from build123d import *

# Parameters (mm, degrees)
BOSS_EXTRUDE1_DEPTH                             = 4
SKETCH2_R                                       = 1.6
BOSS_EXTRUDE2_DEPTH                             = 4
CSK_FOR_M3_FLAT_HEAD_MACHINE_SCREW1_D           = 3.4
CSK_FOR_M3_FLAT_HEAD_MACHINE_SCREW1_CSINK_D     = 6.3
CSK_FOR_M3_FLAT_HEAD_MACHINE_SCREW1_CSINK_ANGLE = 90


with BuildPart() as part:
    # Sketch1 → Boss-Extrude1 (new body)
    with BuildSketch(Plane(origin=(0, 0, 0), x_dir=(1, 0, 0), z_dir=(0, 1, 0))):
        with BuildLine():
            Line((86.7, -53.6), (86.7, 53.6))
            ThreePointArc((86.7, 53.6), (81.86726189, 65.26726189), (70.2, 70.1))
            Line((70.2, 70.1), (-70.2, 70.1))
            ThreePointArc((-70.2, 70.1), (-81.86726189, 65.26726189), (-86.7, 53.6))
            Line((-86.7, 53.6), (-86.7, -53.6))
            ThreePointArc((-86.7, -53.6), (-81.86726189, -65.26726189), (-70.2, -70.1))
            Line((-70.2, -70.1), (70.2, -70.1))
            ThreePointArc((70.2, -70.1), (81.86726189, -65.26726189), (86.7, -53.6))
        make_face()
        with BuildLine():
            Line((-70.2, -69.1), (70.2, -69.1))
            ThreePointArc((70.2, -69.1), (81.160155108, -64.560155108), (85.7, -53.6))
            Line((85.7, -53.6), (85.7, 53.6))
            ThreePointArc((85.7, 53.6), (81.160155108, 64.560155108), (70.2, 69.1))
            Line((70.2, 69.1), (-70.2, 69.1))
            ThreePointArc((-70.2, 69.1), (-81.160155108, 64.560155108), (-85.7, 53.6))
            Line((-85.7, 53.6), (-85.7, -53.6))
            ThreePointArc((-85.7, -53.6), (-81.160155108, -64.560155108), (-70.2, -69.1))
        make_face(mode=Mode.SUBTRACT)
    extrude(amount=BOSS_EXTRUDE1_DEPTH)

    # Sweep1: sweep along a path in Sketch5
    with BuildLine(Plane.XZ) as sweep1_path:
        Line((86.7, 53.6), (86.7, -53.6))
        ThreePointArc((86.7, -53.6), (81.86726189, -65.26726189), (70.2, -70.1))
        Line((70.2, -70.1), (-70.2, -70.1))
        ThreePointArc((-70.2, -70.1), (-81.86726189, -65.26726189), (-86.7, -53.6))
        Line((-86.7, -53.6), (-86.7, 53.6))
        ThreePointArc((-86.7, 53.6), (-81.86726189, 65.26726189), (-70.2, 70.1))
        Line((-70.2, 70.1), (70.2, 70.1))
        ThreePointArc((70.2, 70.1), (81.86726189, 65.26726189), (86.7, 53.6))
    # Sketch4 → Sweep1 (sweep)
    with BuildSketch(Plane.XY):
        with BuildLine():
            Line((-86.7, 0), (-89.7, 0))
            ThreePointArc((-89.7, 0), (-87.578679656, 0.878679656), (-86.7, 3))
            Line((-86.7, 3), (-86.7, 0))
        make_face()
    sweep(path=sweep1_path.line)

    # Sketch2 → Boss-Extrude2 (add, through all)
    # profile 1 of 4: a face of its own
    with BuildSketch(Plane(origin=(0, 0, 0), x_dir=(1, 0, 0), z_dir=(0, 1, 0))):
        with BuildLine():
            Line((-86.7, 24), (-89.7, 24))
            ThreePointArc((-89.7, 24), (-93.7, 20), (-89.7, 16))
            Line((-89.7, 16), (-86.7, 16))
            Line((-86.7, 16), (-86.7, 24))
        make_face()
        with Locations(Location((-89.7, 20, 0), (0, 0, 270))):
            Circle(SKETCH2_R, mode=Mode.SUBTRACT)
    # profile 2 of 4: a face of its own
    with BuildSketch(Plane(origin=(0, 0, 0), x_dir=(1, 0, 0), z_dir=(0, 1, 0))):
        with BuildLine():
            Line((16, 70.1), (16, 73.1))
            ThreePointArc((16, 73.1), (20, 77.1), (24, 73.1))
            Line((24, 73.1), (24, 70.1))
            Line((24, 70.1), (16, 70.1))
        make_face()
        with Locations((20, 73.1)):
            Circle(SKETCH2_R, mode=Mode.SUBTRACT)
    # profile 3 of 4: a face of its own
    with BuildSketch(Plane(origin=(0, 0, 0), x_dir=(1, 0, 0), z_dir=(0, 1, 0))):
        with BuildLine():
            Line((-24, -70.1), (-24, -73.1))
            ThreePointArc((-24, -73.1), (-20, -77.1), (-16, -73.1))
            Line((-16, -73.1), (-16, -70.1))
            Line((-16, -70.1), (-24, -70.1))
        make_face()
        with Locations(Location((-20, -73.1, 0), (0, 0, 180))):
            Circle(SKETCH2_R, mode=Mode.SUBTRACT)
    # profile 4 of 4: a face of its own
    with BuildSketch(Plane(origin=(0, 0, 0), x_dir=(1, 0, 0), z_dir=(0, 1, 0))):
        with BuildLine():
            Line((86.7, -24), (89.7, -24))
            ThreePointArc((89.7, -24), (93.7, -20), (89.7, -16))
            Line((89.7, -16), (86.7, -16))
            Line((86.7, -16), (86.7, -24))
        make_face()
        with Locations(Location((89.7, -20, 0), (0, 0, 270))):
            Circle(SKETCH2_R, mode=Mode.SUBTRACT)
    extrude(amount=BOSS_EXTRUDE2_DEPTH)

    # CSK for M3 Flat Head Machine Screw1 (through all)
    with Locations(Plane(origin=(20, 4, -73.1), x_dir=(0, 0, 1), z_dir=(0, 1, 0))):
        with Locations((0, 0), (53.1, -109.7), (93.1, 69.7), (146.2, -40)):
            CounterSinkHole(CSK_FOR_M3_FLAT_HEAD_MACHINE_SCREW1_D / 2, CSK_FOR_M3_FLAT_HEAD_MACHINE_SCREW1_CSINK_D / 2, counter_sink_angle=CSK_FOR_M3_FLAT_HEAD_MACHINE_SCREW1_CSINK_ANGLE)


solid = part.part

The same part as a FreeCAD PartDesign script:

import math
import FreeCAD as App
import Part
import Sketcher
from FreeCAD import Vector

doc = App.newDocument("Part")
body = doc.addObject("PartDesign::Body", "Body")

# Sketch on XZ plane
sketch1 = body.newObject("Sketcher::SketchObject", "Sketch")
sketch1.AttachmentSupport = (doc.getObject("XZ_Plane"), [""])
sketch1.MapMode = "FlatFace"
sketch1.addGeometry([
    Part.LineSegment(Vector(86.7, 53.6, 0), Vector(86.7, -53.6, 0)),  # 0
    Part.ArcOfCircle(Part.Circle(Vector(70.2, -53.6, 0), Vector(0, 0, 1), 16.5), math.radians(-90), math.radians(0)),  # 1
    Part.LineSegment(Vector(70.2, -70.1, 0), Vector(-70.2, -70.1, 0)),  # 2
    Part.ArcOfCircle(Part.Circle(Vector(-70.2, -53.6, 0), Vector(0, 0, 1), 16.5), math.radians(180), math.radians(270)),  # 3
    Part.LineSegment(Vector(-86.7, -53.6, 0), Vector(-86.7, 53.6, 0)),  # 4
    Part.ArcOfCircle(Part.Circle(Vector(-70.2, 53.6, 0), Vector(0, 0, 1), 16.5), math.radians(90), math.radians(180)),  # 5
    Part.LineSegment(Vector(-70.2, 70.1, 0), Vector(70.2, 70.1, 0)),  # 6
    Part.ArcOfCircle(Part.Circle(Vector(70.2, 53.6, 0), Vector(0, 0, 1), 16.5), math.radians(0), math.radians(90)),  # 7
    Part.LineSegment(Vector(70.2, 69.1, 0), Vector(-70.2, 69.1, 0)),  # 8
    Part.ArcOfCircle(Part.Circle(Vector(-70.2, 53.6, 0), Vector(0, 0, 1), 15.5), math.radians(90), math.radians(180)),  # 9
    Part.LineSegment(Vector(-85.7, 53.6, 0), Vector(-85.7, -53.6, 0)),  # 10
    Part.ArcOfCircle(Part.Circle(Vector(-70.2, -53.6, 0), Vector(0, 0, 1), 15.5), math.radians(-180), math.radians(-90)),  # 11
    Part.LineSegment(Vector(-70.2, -69.1, 0), Vector(70.2, -69.1, 0)),  # 12
    Part.ArcOfCircle(Part.Circle(Vector(70.2, -53.6, 0), Vector(0, 0, 1), 15.5), math.radians(-90), math.radians(0)),  # 13
    Part.LineSegment(Vector(85.7, -53.6, 0), Vector(85.7, 53.6, 0)),  # 14
    Part.ArcOfCircle(Part.Circle(Vector(70.2, 53.6, 0), Vector(0, 0, 1), 15.5), math.radians(0), math.radians(90)),  # 15
], False)
sketch1.addConstraint([
    Sketcher.Constraint("Tangent", 0, 2, 1, 2),
    Sketcher.Constraint("Tangent", 1, 1, 2, 1),
    Sketcher.Constraint("Tangent", 2, 2, 3, 2),
    Sketcher.Constraint("Tangent", 3, 1, 4, 1),
    Sketcher.Constraint("Tangent", 4, 2, 5, 2),
    Sketcher.Constraint("Tangent", 5, 1, 6, 1),
    Sketcher.Constraint("Tangent", 6, 2, 7, 2),
    Sketcher.Constraint("Tangent", 7, 1, 0, 1),
    Sketcher.Constraint("Tangent", 8, 2, 9, 1),
    Sketcher.Constraint("Tangent", 9, 2, 10, 1),
    Sketcher.Constraint("Tangent", 10, 2, 11, 1),
    Sketcher.Constraint("Tangent", 11, 2, 12, 1),
    Sketcher.Constraint("Tangent", 12, 2, 13, 1),
    Sketcher.Constraint("Tangent", 13, 2, 14, 1),
    Sketcher.Constraint("Tangent", 14, 2, 15, 1),
    Sketcher.Constraint("Tangent", 15, 2, 8, 1),
    Sketcher.Constraint("Vertical", 0),
    Sketcher.Constraint("Horizontal", 2),
    Sketcher.Constraint("Vertical", 4),
    Sketcher.Constraint("Horizontal", 6),
    Sketcher.Constraint("Horizontal", 8),
    Sketcher.Constraint("Vertical", 10),
    Sketcher.Constraint("Horizontal", 12),
    Sketcher.Constraint("Vertical", 14),
    Sketcher.Constraint("Coincident", 9, 3, 5, 3),
    Sketcher.Constraint("Coincident", 11, 3, 3, 3),
    Sketcher.Constraint("Coincident", 13, 3, 1, 3),
    Sketcher.Constraint("Equal", 1, 3),
    Sketcher.Constraint("Equal", 3, 5),
    Sketcher.Constraint("Equal", 5, 7),
    Sketcher.Constraint("Equal", 13, 15),
    Sketcher.Constraint("Symmetric", 1, 3, 5, 3, -1, 1),
    Sketcher.Constraint("Radius", 1, 16.5),
    Sketcher.Constraint("Radius", 9, 15.5),
    Sketcher.Constraint("DistanceX", 2, 2, 2, 1, 140.4),
    Sketcher.Constraint("DistanceY", 0, 2, 0, 1, 107.2),
])
pad1 = body.newObject("PartDesign::Pad", "Pad")
pad1.Profile = sketch1
pad1.Length = 4
pad1.Reversed = True

# Sketch on XY plane
sketch2 = body.newObject("Sketcher::SketchObject", "Sketch001")
sketch2.AttachmentSupport = (doc.getObject("XY_Plane"), [""])
sketch2.MapMode = "FlatFace"
sketch2.addGeometry([
    Part.LineSegment(Vector(-89.7, 0, 0), Vector(-86.7, 0, 0)),
    Part.LineSegment(Vector(-86.7, 0, 0), Vector(-86.7, 3, 0)),
    Part.ArcOfCircle(Part.Circle(Vector(-89.7, 3, 0), Vector(0, 0, 1), 3), math.radians(-90), math.radians(0)),
], False)
sketch2.addConstraint([
    Sketcher.Constraint("Coincident", 0, 2, 1, 1),
    Sketcher.Constraint("Tangent", 1, 2, 2, 2),
    Sketcher.Constraint("Tangent", 2, 1, 0, 1),
    Sketcher.Constraint("Horizontal", 0),
    Sketcher.Constraint("Vertical", 1),
    Sketcher.Constraint("PointOnObject", 0, 2, -1),
    Sketcher.Constraint("Radius", 2, 3.0),
    Sketcher.Constraint("DistanceX", 2, 3, -1, 1, 89.7),
])

# Sketch on XZ plane
sketch3 = body.newObject("Sketcher::SketchObject", "Sketch002")
sketch3.AttachmentSupport = (doc.getObject("XZ_Plane"), [""])
sketch3.MapMode = "FlatFace"
sketch3.addGeometry([
    Part.LineSegment(Vector(86.7, 53.6, 0), Vector(86.7, -53.6, 0)),  # 0
    Part.ArcOfCircle(Part.Circle(Vector(70.2, -53.6, 0), Vector(0, 0, 1), 16.5), math.radians(-90), math.radians(0)),  # 1
    Part.LineSegment(Vector(70.2, -70.1, 0), Vector(-70.2, -70.1, 0)),  # 2
    Part.ArcOfCircle(Part.Circle(Vector(-70.2, -53.6, 0), Vector(0, 0, 1), 16.5), math.radians(180), math.radians(270)),  # 3
    Part.LineSegment(Vector(-86.7, -53.6, 0), Vector(-86.7, 53.6, 0)),  # 4
    Part.ArcOfCircle(Part.Circle(Vector(-70.2, 53.6, 0), Vector(0, 0, 1), 16.5), math.radians(90), math.radians(180)),  # 5
    Part.LineSegment(Vector(-70.2, 70.1, 0), Vector(70.2, 70.1, 0)),  # 6
    Part.ArcOfCircle(Part.Circle(Vector(70.2, 53.6, 0), Vector(0, 0, 1), 16.5), math.radians(0), math.radians(90)),  # 7
], False)
sketch3.addConstraint([
    Sketcher.Constraint("Tangent", 0, 2, 1, 2),
    Sketcher.Constraint("Tangent", 1, 1, 2, 1),
    Sketcher.Constraint("Tangent", 2, 2, 3, 2),
    Sketcher.Constraint("Tangent", 3, 1, 4, 1),
    Sketcher.Constraint("Tangent", 4, 2, 5, 2),
    Sketcher.Constraint("Tangent", 5, 1, 6, 1),
    Sketcher.Constraint("Tangent", 6, 2, 7, 2),
    Sketcher.Constraint("Tangent", 7, 1, 0, 1),
    Sketcher.Constraint("Vertical", 0),
    Sketcher.Constraint("Horizontal", 2),
    Sketcher.Constraint("Vertical", 4),
    Sketcher.Constraint("Horizontal", 6),
    Sketcher.Constraint("Equal", 1, 3),
    Sketcher.Constraint("Equal", 3, 5),
    Sketcher.Constraint("Equal", 5, 7),
    Sketcher.Constraint("Symmetric", 1, 3, 5, 3, -1, 1),
    Sketcher.Constraint("Radius", 1, 16.5),
    Sketcher.Constraint("DistanceX", 2, 2, 2, 1, 140.4),
    Sketcher.Constraint("DistanceY", 0, 2, 0, 1, 107.2),
])
doc.recompute()

additivepipe = body.newObject("PartDesign::AdditivePipe", "AdditivePipe")
additivepipe.Profile = sketch2
additivepipe.Spine = (sketch3, ["Edge1", "Edge2", "Edge3", "Edge4", "Edge5", "Edge6", "Edge7", "Edge8"])

# Sketch on XZ plane
sketch4 = body.newObject("Sketcher::SketchObject", "Sketch003")
sketch4.AttachmentSupport = (doc.getObject("XZ_Plane"), [""])
sketch4.MapMode = "FlatFace"
sketch4.addGeometry([
    Part.LineSegment(Vector(-86.7, -24, 0), Vector(-89.7, -24, 0)),  # 0
    Part.ArcOfCircle(Part.Circle(Vector(-89.7, -20, 0), Vector(0, 0, 1), 4), math.radians(90), math.radians(270)),  # 1
    Part.LineSegment(Vector(-89.7, -16, 0), Vector(-86.7, -16, 0)),  # 2
    Part.LineSegment(Vector(-86.7, -16, 0), Vector(-86.7, -24, 0)),  # 3
    Part.Circle(Vector(-89.7, -20, 0), Vector(0, 0, 1), 1.6),  # 4
    Part.LineSegment(Vector(16, -73.1, 0), Vector(16, -70.1, 0)),  # 5
    Part.LineSegment(Vector(16, -70.1, 0), Vector(24, -70.1, 0)),  # 6
    Part.LineSegment(Vector(24, -70.1, 0), Vector(24, -73.1, 0)),  # 7
    Part.ArcOfCircle(Part.Circle(Vector(20, -73.1, 0), Vector(0, 0, 1), 4), math.radians(180), math.radians(360)),  # 8
    Part.Circle(Vector(20, -73.1, 0), Vector(0, 0, 1), 1.6),  # 9
    Part.LineSegment(Vector(-24, 70.1, 0), Vector(-24, 73.1, 0)),  # 10
    Part.ArcOfCircle(Part.Circle(Vector(-20, 73.1, 0), Vector(0, 0, 1), 4), math.radians(0), math.radians(180)),  # 11
    Part.LineSegment(Vector(-16, 73.1, 0), Vector(-16, 70.1, 0)),  # 12
    Part.LineSegment(Vector(-16, 70.1, 0), Vector(-24, 70.1, 0)),  # 13
    Part.Circle(Vector(-20, 73.1, 0), Vector(0, 0, 1), 1.6),  # 14
    Part.LineSegment(Vector(86.7, 24, 0), Vector(89.7, 24, 0)),  # 15
    Part.ArcOfCircle(Part.Circle(Vector(89.7, 20, 0), Vector(0, 0, 1), 4), math.radians(-90), math.radians(90)),  # 16
    Part.LineSegment(Vector(89.7, 16, 0), Vector(86.7, 16, 0)),  # 17
    Part.LineSegment(Vector(86.7, 16, 0), Vector(86.7, 24, 0)),  # 18
    Part.Circle(Vector(89.7, 20, 0), Vector(0, 0, 1), 1.6),  # 19
], False)
sketch4.addConstraint([
    Sketcher.Constraint("Tangent", 0, 2, 1, 2),
    Sketcher.Constraint("Tangent", 1, 1, 2, 1),
    Sketcher.Constraint("Coincident", 2, 2, 3, 1),
    Sketcher.Constraint("Coincident", 3, 2, 0, 1),
    Sketcher.Constraint("Coincident", 5, 2, 6, 1),
    Sketcher.Constraint("Coincident", 6, 2, 7, 1),
    Sketcher.Constraint("Tangent", 7, 2, 8, 2),
    Sketcher.Constraint("Tangent", 8, 1, 5, 1),
    Sketcher.Constraint("Tangent", 10, 2, 11, 2),
    Sketcher.Constraint("Tangent", 11, 1, 12, 1),
    Sketcher.Constraint("Coincident", 12, 2, 13, 1),
    Sketcher.Constraint("Coincident", 13, 2, 10, 1),
    Sketcher.Constraint("Tangent", 15, 2, 16, 2),
    Sketcher.Constraint("Tangent", 16, 1, 17, 1),
    Sketcher.Constraint("Coincident", 17, 2, 18, 1),
    Sketcher.Constraint("Coincident", 18, 2, 15, 1),
    Sketcher.Constraint("Horizontal", 0),
    Sketcher.Constraint("Horizontal", 2),
    Sketcher.Constraint("Vertical", 3),
    Sketcher.Constraint("Vertical", 5),
    Sketcher.Constraint("Horizontal", 6),
    Sketcher.Constraint("Vertical", 7),
    Sketcher.Constraint("Vertical", 10),
    Sketcher.Constraint("Vertical", 12),
    Sketcher.Constraint("Horizontal", 13),
    Sketcher.Constraint("Horizontal", 15),
    Sketcher.Constraint("Horizontal", 17),
    Sketcher.Constraint("Vertical", 18),
    Sketcher.Constraint("Coincident", 4, 3, 1, 3),
    Sketcher.Constraint("Coincident", 9, 3, 8, 3),
    Sketcher.Constraint("Coincident", 14, 3, 11, 3),
    Sketcher.Constraint("Coincident", 19, 3, 16, 3),
    Sketcher.Constraint("Equal", 1, 8),
    Sketcher.Constraint("Equal", 4, 9),
    Sketcher.Constraint("Equal", 8, 11),
    Sketcher.Constraint("Equal", 9, 14),
    Sketcher.Constraint("Equal", 11, 16),
    Sketcher.Constraint("Equal", 14, 19),
    Sketcher.Constraint("Symmetric", 8, 3, 11, 3, -1, 1),
    Sketcher.Constraint("Symmetric", 1, 3, 16, 3, -1, 1),
    Sketcher.Constraint("Equal", 2, 15),
    Sketcher.Constraint("Equal", 17, 5),
    Sketcher.Constraint("Equal", 7, 10),
    Sketcher.Constraint("Radius", 1, 4.0),
    Sketcher.Constraint("Diameter", 4, 3.2),
    Sketcher.Constraint("DistanceX", 0, 2, 0, 1, 3.0),
    Sketcher.Constraint("DistanceY", 1, 3, -1, 1, 20.0),
    Sketcher.Constraint("DistanceX", -1, 1, 8, 3, 20.0),
    Sketcher.Constraint("DistanceX", 1, 3, -1, 1, 89.7),
    Sketcher.Constraint("DistanceY", 8, 3, -1, 1, 73.1),
])
pad2 = body.newObject("PartDesign::Pad", "Pad001")
pad2.Profile = sketch4
pad2.Length = 4
pad2.Reversed = True

# Sketch on XZ plane
sketch5 = body.newObject("Sketcher::SketchObject", "Sketch004")
sketch5.AttachmentSupport = (doc.getObject("XZ_Plane"), [""])
sketch5.MapMode = "FlatFace"
sketch5.AttachmentOffset = App.Placement(Vector(0, 0, -4), App.Rotation())
sketch5.addGeometry([
    Part.Circle(Vector(20, -73.1, 0), Vector(0, 0, 1), 1.7),
    Part.Circle(Vector(-89.7, -20, 0), Vector(0, 0, 1), 1.7),
    Part.Circle(Vector(89.7, 20, 0), Vector(0, 0, 1), 1.7),
    Part.Circle(Vector(-20, 73.1, 0), Vector(0, 0, 1), 1.7),
], False)
sketch5.addConstraint([
    Sketcher.Constraint("Equal", 0, 1),
    Sketcher.Constraint("Equal", 1, 2),
    Sketcher.Constraint("Equal", 2, 3),
    Sketcher.Constraint("Symmetric", 1, 3, 2, 3, -1, 1),
    Sketcher.Constraint("Symmetric", 0, 3, 3, 3, -1, 1),
    Sketcher.Constraint("Diameter", 0, 3.4),
    Sketcher.Constraint("DistanceX", -1, 1, 0, 3, 20.0),
    Sketcher.Constraint("DistanceY", 1, 3, -1, 1, 20.0),
    Sketcher.Constraint("DistanceY", 0, 3, -1, 1, 73.1),
    Sketcher.Constraint("DistanceX", 1, 3, -1, 1, 89.7),
])
doc.recompute()
hole = body.newObject("PartDesign::Hole", "Hole")
hole.Profile = sketch5
hole.ThreadType = "None"
hole.Diameter = 3.4
hole.DepthType = "ThroughAll"
hole.HoleCutType = "Countersink"
hole.HoleCutDiameter = 6.3
hole.HoleCutCountersinkAngle = 90
hole.Reversed = True

doc.recompute()
